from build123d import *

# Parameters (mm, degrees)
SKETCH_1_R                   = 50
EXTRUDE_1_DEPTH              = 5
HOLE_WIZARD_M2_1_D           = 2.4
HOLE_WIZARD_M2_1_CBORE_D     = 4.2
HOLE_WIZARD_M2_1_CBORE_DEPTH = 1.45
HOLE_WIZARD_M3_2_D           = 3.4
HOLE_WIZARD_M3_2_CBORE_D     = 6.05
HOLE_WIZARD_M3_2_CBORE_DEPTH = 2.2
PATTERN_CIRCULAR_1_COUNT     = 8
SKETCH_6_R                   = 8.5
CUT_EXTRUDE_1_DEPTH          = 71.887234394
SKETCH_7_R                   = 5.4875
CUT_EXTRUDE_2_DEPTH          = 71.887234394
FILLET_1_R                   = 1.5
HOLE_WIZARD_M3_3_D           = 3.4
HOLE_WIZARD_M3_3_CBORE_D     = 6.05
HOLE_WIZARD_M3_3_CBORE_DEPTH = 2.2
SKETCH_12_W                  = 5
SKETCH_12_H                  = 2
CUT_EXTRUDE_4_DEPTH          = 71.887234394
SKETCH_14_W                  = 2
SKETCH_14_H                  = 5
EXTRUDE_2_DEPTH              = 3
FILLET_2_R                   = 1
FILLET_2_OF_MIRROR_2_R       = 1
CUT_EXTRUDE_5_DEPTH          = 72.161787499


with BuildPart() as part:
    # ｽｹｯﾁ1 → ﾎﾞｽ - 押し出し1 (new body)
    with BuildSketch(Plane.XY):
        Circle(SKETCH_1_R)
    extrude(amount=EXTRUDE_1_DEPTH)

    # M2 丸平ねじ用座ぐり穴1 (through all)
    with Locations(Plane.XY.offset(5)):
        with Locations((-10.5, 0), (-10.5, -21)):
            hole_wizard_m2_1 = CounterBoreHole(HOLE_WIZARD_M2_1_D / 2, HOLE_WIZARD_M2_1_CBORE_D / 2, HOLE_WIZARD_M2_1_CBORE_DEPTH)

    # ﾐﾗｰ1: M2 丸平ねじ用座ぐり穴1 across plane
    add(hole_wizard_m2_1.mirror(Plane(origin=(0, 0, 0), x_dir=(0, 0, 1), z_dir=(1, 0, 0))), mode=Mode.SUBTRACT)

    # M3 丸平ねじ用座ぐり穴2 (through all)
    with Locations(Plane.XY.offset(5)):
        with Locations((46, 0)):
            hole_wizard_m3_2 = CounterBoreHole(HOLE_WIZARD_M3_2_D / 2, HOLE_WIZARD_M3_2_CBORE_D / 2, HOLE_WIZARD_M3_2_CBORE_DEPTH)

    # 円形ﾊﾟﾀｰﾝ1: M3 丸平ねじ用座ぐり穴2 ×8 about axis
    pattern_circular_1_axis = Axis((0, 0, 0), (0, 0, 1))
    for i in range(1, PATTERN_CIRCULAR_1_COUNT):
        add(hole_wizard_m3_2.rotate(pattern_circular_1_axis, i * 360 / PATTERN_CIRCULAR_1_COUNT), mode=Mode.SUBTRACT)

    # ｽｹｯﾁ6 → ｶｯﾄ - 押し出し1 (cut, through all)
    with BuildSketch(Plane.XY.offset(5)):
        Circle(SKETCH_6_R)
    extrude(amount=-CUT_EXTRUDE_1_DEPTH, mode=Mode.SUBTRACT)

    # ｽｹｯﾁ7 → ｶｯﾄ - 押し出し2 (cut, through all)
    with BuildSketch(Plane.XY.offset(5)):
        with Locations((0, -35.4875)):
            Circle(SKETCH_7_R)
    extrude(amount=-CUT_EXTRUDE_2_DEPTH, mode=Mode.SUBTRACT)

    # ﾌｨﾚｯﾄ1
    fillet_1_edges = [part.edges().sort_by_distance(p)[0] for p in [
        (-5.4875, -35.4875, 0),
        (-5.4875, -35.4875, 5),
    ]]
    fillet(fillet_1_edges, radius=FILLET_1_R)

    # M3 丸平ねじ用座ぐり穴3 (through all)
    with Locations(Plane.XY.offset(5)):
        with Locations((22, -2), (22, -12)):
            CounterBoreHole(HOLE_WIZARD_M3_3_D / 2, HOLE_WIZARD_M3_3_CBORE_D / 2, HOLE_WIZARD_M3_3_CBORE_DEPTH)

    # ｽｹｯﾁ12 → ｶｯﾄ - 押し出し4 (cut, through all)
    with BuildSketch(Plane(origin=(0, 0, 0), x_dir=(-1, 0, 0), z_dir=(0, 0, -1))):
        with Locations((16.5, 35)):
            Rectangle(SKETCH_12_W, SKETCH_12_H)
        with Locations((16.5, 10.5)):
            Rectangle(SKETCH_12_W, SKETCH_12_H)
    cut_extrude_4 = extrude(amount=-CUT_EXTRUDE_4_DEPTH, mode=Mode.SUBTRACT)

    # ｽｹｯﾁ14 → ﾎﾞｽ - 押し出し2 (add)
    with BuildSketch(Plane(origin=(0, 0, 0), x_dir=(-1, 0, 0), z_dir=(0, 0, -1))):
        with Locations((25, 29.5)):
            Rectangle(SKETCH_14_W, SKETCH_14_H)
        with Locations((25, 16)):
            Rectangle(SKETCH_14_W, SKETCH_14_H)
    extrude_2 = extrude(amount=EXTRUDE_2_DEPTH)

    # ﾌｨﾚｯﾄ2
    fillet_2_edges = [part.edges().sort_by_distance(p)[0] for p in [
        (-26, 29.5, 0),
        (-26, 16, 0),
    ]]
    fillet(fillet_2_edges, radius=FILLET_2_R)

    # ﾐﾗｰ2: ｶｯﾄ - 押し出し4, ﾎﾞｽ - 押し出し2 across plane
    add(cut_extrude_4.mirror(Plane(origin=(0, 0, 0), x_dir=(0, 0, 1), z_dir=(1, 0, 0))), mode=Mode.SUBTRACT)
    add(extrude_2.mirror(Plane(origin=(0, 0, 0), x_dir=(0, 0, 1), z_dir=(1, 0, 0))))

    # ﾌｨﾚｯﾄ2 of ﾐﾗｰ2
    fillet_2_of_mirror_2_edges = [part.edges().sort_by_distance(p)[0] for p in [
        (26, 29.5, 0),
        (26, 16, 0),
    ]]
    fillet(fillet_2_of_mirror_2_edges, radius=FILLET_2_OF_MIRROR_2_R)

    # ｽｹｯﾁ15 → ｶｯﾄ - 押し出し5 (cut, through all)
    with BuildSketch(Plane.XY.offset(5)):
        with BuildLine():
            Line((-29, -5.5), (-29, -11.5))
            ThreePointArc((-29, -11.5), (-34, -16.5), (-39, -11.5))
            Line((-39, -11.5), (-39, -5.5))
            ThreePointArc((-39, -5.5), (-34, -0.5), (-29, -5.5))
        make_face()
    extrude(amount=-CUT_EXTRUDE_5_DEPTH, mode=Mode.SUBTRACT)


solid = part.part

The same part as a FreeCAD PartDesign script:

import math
import FreeCAD as App
import Part
import Sketcher

V = App.Vector
Q = App.Units.Quantity


def edges_at(feature, points):
    """Names of the edges that pass closest to the given points."""
    edges = feature.Shape.Edges
    near = lambda p: min(range(len(edges)), key=lambda i: edges[i].distToShape(Part.Vertex(*p))[0])
    return sorted({f"Edge{near(p) + 1}" for p in points})

doc = App.newDocument("Part")
params = doc.addObject("Spreadsheet::Sheet", "Params")
for row, (alias, value) in enumerate([
    ("sketch1_diameter", "100 mm"),
    ("pad1_length", "5 mm"),
    ("sketch2_diameter", "2.4 mm"),
    ("hole_diameter", "2.4 mm"),
    ("hole_cbore_diameter", "4.2 mm"),
    ("hole_cbore_depth", "1.45 mm"),
    ("sketch3_diameter", "3.4 mm"),
    ("hole2_diameter", "3.4 mm"),
    ("hole2_cbore_diameter", "6.05 mm"),
    ("hole2_cbore_depth", "2.2 mm"),
    ("sketch4_diameter", "17 mm"),
    ("fillet_radius", "1.5 mm"),
    ("sketch6_diameter", "3.4 mm"),
    ("hole3_diameter", "3.4 mm"),
    ("hole3_cbore_diameter", "6.05 mm"),
    ("hole3_cbore_depth", "2.2 mm"),
    ("sketch7_width", "5 mm"),
    ("sketch7_height", "2 mm"),
    ("sketch8_width", "2 mm"),
    ("sketch8_height", "5 mm"),
    ("pad2_length", "3 mm"),
    ("fillet2_radius", "1 mm"),
    ("fillet3_radius", "1 mm"),
    ("sketch9_radius", "5 mm"),
    ("sketch9_height", "6 mm"),
], start=1):
    params.set(f"A{row}", alias)
    params.set(f"B{row}", "=" + value)
    params.setAlias(f"B{row}", alias)

body = doc.addObject("PartDesign::Body", "Body")

# Sketch on XY plane
sketch1 = body.newObject("Sketcher::SketchObject", "Sketch")
sketch1.AttachmentSupport = (doc.getObject("XY_Plane"), [""])
sketch1.MapMode = "FlatFace"
sketch1.addGeometry(Part.Circle(V(0, 0, 0), V(0, 0, 1), 50), False)
sketch1.addConstraint([
    Sketcher.Constraint("Coincident", 0, 3, -1, 1),
    Sketcher.Constraint("Diameter", 0, Q("100 mm")),
])
sketch1.setExpression("Constraints[1]", "Params.sketch1_diameter")
pad1 = body.newObject("PartDesign::Pad", "Pad")
pad1.Profile = sketch1
pad1.setExpression("Length", "Params.pad1_length")

# Sketch on XY plane
sketch2 = body.newObject("Sketcher::SketchObject", "Sketch001")
sketch2.AttachmentSupport = (doc.getObject("XY_Plane"), [""])
sketch2.MapMode = "FlatFace"
sketch2.AttachmentOffset = App.Placement(V(0, 0, 5), App.Rotation())
sketch2.addGeometry([
    Part.Circle(V(-10.5, 0, 0), V(0, 0, 1), 1.2),
    Part.Circle(V(-10.5, -21, 0), V(0, 0, 1), 1.2),
], False)
sketch2.addConstraint([
    Sketcher.Constraint("Equal", 0, 1),
    Sketcher.Constraint("PointOnObject", 0, 3, -1),
    Sketcher.Constraint("Vertical", 0, 3, 1, 3),
    Sketcher.Constraint("Diameter", 0, Q("2.4 mm")),
    Sketcher.Constraint("DistanceY", 1, 3, -1, 1, Q("21 mm")),
    Sketcher.Constraint("DistanceX", 0, 3, -1, 1, Q("10.5 mm")),
])
sketch2.setExpression("Constraints[3]", "Params.sketch2_diameter")
doc.recompute()
hole = body.newObject("PartDesign::Hole", "Hole")
hole.Profile = sketch2
hole.ThreadType = "None"
hole.setExpression("Diameter", "Params.hole_diameter")
hole.DepthType = "ThroughAll"
hole.HoleCutType = "Counterbore"
hole.setExpression("HoleCutDiameter", "Params.hole_cbore_diameter")
hole.setExpression("HoleCutDepth", "Params.hole_cbore_depth")
doc.recompute()

mirrored = body.newObject("PartDesign::Mirrored", "Mirrored")
mirrored.Originals = [hole]
mirrored.MirrorPlane = (doc.getObject("YZ_Plane"), [""])
body.Tip = mirrored

# Sketch on XY plane
sketch3 = body.newObject("Sketcher::SketchObject", "Sketch002")
sketch3.AttachmentSupport = (doc.getObject("XY_Plane"), [""])
sketch3.MapMode = "FlatFace"
sketch3.AttachmentOffset = App.Placement(V(0, 0, 5), App.Rotation())
sketch3.addGeometry(Part.Circle(V(46, 0, 0), V(0, 0, 1), 1.7), False)
sketch3.addConstraint([
    Sketcher.Constraint("PointOnObject", 0, 3, -1),
    Sketcher.Constraint("Diameter", 0, Q("3.4 mm")),
    Sketcher.Constraint("DistanceX", -1, 1, 0, 3, Q("46 mm")),
])
sketch3.setExpression("Constraints[1]", "Params.sketch3_diameter")
doc.recompute()
hole2 = body.newObject("PartDesign::Hole", "Hole001")
hole2.Profile = sketch3
hole2.ThreadType = "None"
hole2.setExpression("Diameter", "Params.hole2_diameter")
hole2.DepthType = "ThroughAll"
hole2.HoleCutType = "Counterbore"
hole2.setExpression("HoleCutDiameter", "Params.hole2_cbore_diameter")
hole2.setExpression("HoleCutDepth", "Params.hole2_cbore_depth")
doc.recompute()

polarpattern = body.newObject("PartDesign::PolarPattern", "PolarPattern")
polarpattern.Originals = [hole2]
polarpattern.Axis = (doc.getObject("Z_Axis"), [""])
polarpattern.Angle = 360
polarpattern.Occurrences = 8
body.Tip = polarpattern

# Sketch on XY plane
sketch4 = body.newObject("Sketcher::SketchObject", "Sketch003")
sketch4.AttachmentSupport = (doc.getObject("XY_Plane"), [""])
sketch4.MapMode = "FlatFace"
sketch4.AttachmentOffset = App.Placement(V(0, 0, 5), App.Rotation())
sketch4.addGeometry(Part.Circle(V(0, 0, 0), V(0, 0, 1), 8), False)
sketch4.addConstraint([
    Sketcher.Constraint("Coincident", 0, 3, -1, 1),
    Sketcher.Constraint("Diameter", 0, Q("17 mm")),
])
sketch4.setExpression("Constraints[1]", "Params.sketch4_diameter")
pocket1 = body.newObject("PartDesign::Pocket", "Pocket")
pocket1.Profile = sketch4
pocket1.Type = "ThroughAll"

# Sketch on XY plane
sketch5 = body.newObject("Sketcher::SketchObject", "Sketch004")
sketch5.AttachmentSupport = (doc.getObject("XY_Plane"), [""])
sketch5.MapMode = "FlatFace"
sketch5.AttachmentOffset = App.Placement(V(0, 0, 5), App.Rotation())
sketch5.addGeometry(Part.Circle(V(0, -35, 0), V(0, 0, 1), 5), False)
sketch5.addConstraint([
    Sketcher.Constraint("PointOnObject", 0, 3, -2),
    Sketcher.Constraint("Diameter", 0, Q("10.975 mm")),
    Sketcher.Constraint("DistanceY", 0, 3, -1, 1, Q("35.4875 mm")),
])
pocket2 = body.newObject("PartDesign::Pocket", "Pocket001")
pocket2.Profile = sketch5
pocket2.Type = "ThroughAll"
doc.recompute()

fillet = body.newObject("PartDesign::Fillet", "Fillet")
fillet.Base = (pocket2, edges_at(pocket2, [(-5.487, -35.487, 0), (-5.487, -35.487, 5)]))
fillet.setExpression("Radius", "Params.fillet_radius")

# Sketch on XY plane
sketch6 = body.newObject("Sketcher::SketchObject", "Sketch005")
sketch6.AttachmentSupport = (doc.getObject("XY_Plane"), [""])
sketch6.MapMode = "FlatFace"
sketch6.AttachmentOffset = App.Placement(V(0, 0, 5), App.Rotation())
sketch6.addGeometry([
    Part.Circle(V(22, -2, 0), V(0, 0, 1), 1.7),
    Part.Circle(V(22, -12, 0), V(0, 0, 1), 1.7),
], False)
sketch6.addConstraint([
    Sketcher.Constraint("Equal", 0, 1),
    Sketcher.Constraint("Vertical", 0, 3, 1, 3),
    Sketcher.Constraint("Diameter", 0, Q("3.4 mm")),
    Sketcher.Constraint("DistanceX", -1, 1, 0, 3, Q("22 mm")),
    Sketcher.Constraint("DistanceY", 0, 3, -1, 1, Q("2 mm")),
    Sketcher.Constraint("DistanceY", 1, 3, -1, 1, Q("12 mm")),
])
sketch6.setExpression("Constraints[2]", "Params.sketch6_diameter")
doc.recompute()
hole3 = body.newObject("PartDesign::Hole", "Hole002")
hole3.Profile = sketch6
hole3.ThreadType = "None"
hole3.setExpression("Diameter", "Params.hole3_diameter")
hole3.DepthType = "ThroughAll"
hole3.HoleCutType = "Counterbore"
hole3.setExpression("HoleCutDiameter", "Params.hole3_cbore_diameter")
hole3.setExpression("HoleCutDepth", "Params.hole3_cbore_depth")

# Sketch on XY plane
sketch7 = body.newObject("Sketcher::SketchObject", "Sketch006")
sketch7.AttachmentSupport = (doc.getObject("XY_Plane"), [""])
sketch7.MapMode = "FlatFace"
sketch7.addGeometry([
    Part.LineSegment(V(-14, 36, 0), V(-14, 34, 0)),  # 0
    Part.LineSegment(V(-14, 34, 0), V(-19, 34, 0)),  # 1
    Part.LineSegment(V(-19, 34, 0), V(-19, 36, 0)),  # 2
    Part.LineSegment(V(-19, 36, 0), V(-14, 36, 0)),  # 3
    Part.LineSegment(V(-14, 11.5, 0), V(-14, 9.5, 0)),  # 4
    Part.LineSegment(V(-14, 9.5, 0), V(-19, 9.5, 0)),  # 5
    Part.LineSegment(V(-19, 9.5, 0), V(-19, 11.5, 0)),  # 6
    Part.LineSegment(V(-19, 11.5, 0), V(-14, 11.5, 0)),  # 7
], False)
sketch7.addConstraint([
    Sketcher.Constraint("Coincident", 0, 2, 1, 1),
    Sketcher.Constraint("Coincident", 1, 2, 2, 1),
    Sketcher.Constraint("Coincident", 2, 2, 3, 1),
    Sketcher.Constraint("Coincident", 3, 2, 0, 1),
    Sketcher.Constraint("Coincident", 4, 2, 5, 1),
    Sketcher.Constraint("Coincident", 5, 2, 6, 1),
    Sketcher.Constraint("Coincident", 6, 2, 7, 1),
    Sketcher.Constraint("Coincident", 7, 2, 4, 1),
    Sketcher.Constraint("Vertical", 0),
    Sketcher.Constraint("Horizontal", 1),
    Sketcher.Constraint("Vertical", 2),
    Sketcher.Constraint("Horizontal", 3),
    Sketcher.Constraint("Vertical", 4),
    Sketcher.Constraint("Horizontal", 5),
    Sketcher.Constraint("Vertical", 6),
    Sketcher.Constraint("Horizontal", 7),
    Sketcher.Constraint("Vertical", 3, 2, 4, 2),
    Sketcher.Constraint("Vertical", 2, 2, 5, 2),
    Sketcher.Constraint("Equal", 2, 4),
    Sketcher.Constraint("DistanceX", 1, 2, 1, 1, Q("5 mm")),
    Sketcher.Constraint("DistanceY", 0, 2, 0, 1, Q("2 mm")),
    Sketcher.Constraint("DistanceX", 0, 2, -1, 1, Q("14 mm")),
    Sketcher.Constraint("DistanceY", -1, 1, 0, 2, Q("34 mm")),
    Sketcher.Constraint("DistanceY", -1, 1, 4, 2, Q("9.5 mm")),
])
sketch7.setExpression("Constraints[19]", "Params.sketch7_width")
sketch7.setExpression("Constraints[20]", "Params.sketch7_height")
pocket3 = body.newObject("PartDesign::Pocket", "Pocket002")
pocket3.Profile = sketch7
pocket3.Type = "ThroughAll"
pocket3.Reversed = True

# Sketch on XY plane
sketch8 = body.newObject("Sketcher::SketchObject", "Sketch007")
sketch8.AttachmentSupport = (doc.getObject("XY_Plane"), [""])
sketch8.MapMode = "FlatFace"
sketch8.addGeometry([
    Part.LineSegment(V(-24, 32, 0), V(-24, 27, 0)),  # 0
    Part.LineSegment(V(-24, 27, 0), V(-26, 27, 0)),  # 1
    Part.LineSegment(V(-26, 27, 0), V(-26, 32, 0)),  # 2
    Part.LineSegment(V(-26, 32, 0), V(-24, 32, 0)),  # 3
    Part.LineSegment(V(-24, 18.5, 0), V(-24, 13.5, 0)),  # 4
    Part.LineSegment(V(-24, 13.5, 0), V(-26, 13.5, 0)),  # 5
    Part.LineSegment(V(-26, 13.5, 0), V(-26, 18.5, 0)),  # 6
    Part.LineSegment(V(-26, 18.5, 0), V(-24, 18.5, 0)),  # 7
], False)
sketch8.addConstraint([
    Sketcher.Constraint("Coincident", 0, 2, 1, 1),
    Sketcher.Constraint("Coincident", 1, 2, 2, 1),
    Sketcher.Constraint("Coincident", 2, 2, 3, 1),
    Sketcher.Constraint("Coincident", 3, 2, 0, 1),
    Sketcher.Constraint("Coincident", 4, 2, 5, 1),
    Sketcher.Constraint("Coincident", 5, 2, 6, 1),
    Sketcher.Constraint("Coincident", 6, 2, 7, 1),
    Sketcher.Constraint("Coincident", 7, 2, 4, 1),
    Sketcher.Constraint("Vertical", 0),
    Sketcher.Constraint("Horizontal", 1),
    Sketcher.Constraint("Vertical", 2),
    Sketcher.Constraint("Horizontal", 3),
    Sketcher.Constraint("Vertical", 4),
    Sketcher.Constraint("Horizontal", 5),
    Sketcher.Constraint("Vertical", 6),
    Sketcher.Constraint("Horizontal", 7),
    Sketcher.Constraint("Vertical", 3, 2, 4, 2),
    Sketcher.Constraint("Vertical", 2, 2, 5, 2),
    Sketcher.Constraint("Equal", 2, 4),
    Sketcher.Constraint("DistanceX", 1, 2, 1, 1, Q("2 mm")),
    Sketcher.Constraint("DistanceY", 0, 2, 0, 1, Q("5 mm")),
    Sketcher.Constraint("DistanceX", 0, 2, -1, 1, Q("24 mm")),
    Sketcher.Constraint("DistanceY", -1, 1, 0, 2, Q("27 mm")),
    Sketcher.Constraint("DistanceY", -1, 1, 4, 2, Q("13.5 mm")),
])
sketch8.setExpression("Constraints[19]", "Params.sketch8_width")
sketch8.setExpression("Constraints[20]", "Params.sketch8_height")
pad2 = body.newObject("PartDesign::Pad", "Pad001")
pad2.Profile = sketch8
pad2.setExpression("Length", "Params.pad2_length")
pad2.Reversed = True
doc.recompute()

fillet2 = body.newObject("PartDesign::Fillet", "Fillet001")
fillet2.Base = (pad2, edges_at(pad2, [(-26, 29.5, 0), (-26, 16, 0)]))
fillet2.setExpression("Radius", "Params.fillet2_radius")
doc.recompute()

mirrored2 = body.newObject("PartDesign::Mirrored", "Mirrored001")
mirrored2.Originals = [pocket3, pad2]
mirrored2.MirrorPlane = (doc.getObject("YZ_Plane"), [""])
body.Tip = mirrored2
doc.recompute()

fillet3 = body.newObject("PartDesign::Fillet", "Fillet002")
fillet3.Base = (mirrored2, edges_at(mirrored2, [(26, 29.5, 0), (26, 16, 0)]))
fillet3.setExpression("Radius", "Params.fillet3_radius")

# Sketch on XY plane
sketch9 = body.newObject("Sketcher::SketchObject", "Sketch008")
sketch9.AttachmentSupport = (doc.getObject("XY_Plane"), [""])
sketch9.MapMode = "FlatFace"
sketch9.AttachmentOffset = App.Placement(V(0, 0, 5), App.Rotation())
sketch9.addGeometry([
    Part.LineSegment(V(-29, -12, 0), V(-29, -6, 0)),
    Part.ArcOfCircle(Part.Circle(V(-34, -6, 0), V(0, 0, 1), 5), math.radians(0), math.radians(180)),
    Part.LineSegment(V(-39, -6, 0), V(-39, -12, 0)),
    Part.ArcOfCircle(Part.Circle(V(-34, -12, 0), V(0, 0, 1), 5), math.radians(180), math.radians(360)),
], False)
sketch9.addConstraint([
    Sketcher.Constraint("Tangent", 0, 2, 1, 1),
    Sketcher.Constraint("Tangent", 1, 2, 2, 1),
    Sketcher.Constraint("Tangent", 2, 2, 3, 1),
    Sketcher.Constraint("Tangent", 3, 2, 0, 1),
    Sketcher.Constraint("Vertical", 0),
    Sketcher.Constraint("Vertical", 2),
    Sketcher.Constraint("Radius", 1, Q("5 mm")),
    Sketcher.Constraint("DistanceY", 0, 1, 0, 2, Q("6 mm")),
    Sketcher.Constraint("DistanceX", 1, 3, -1, 1, Q("34 mm")),
    Sketcher.Constraint("DistanceY", 1, 3, -1, 1, Q("5.5 mm")),
])
sketch9.setExpression("Constraints[6]", "Params.sketch9_radius")
sketch9.setExpression("Constraints[7]", "Params.sketch9_height")
pocket4 = body.newObject("PartDesign::Pocket", "Pocket003")
pocket4.Profile = sketch9
pocket4.Type = "ThroughAll"

doc.recompute()
